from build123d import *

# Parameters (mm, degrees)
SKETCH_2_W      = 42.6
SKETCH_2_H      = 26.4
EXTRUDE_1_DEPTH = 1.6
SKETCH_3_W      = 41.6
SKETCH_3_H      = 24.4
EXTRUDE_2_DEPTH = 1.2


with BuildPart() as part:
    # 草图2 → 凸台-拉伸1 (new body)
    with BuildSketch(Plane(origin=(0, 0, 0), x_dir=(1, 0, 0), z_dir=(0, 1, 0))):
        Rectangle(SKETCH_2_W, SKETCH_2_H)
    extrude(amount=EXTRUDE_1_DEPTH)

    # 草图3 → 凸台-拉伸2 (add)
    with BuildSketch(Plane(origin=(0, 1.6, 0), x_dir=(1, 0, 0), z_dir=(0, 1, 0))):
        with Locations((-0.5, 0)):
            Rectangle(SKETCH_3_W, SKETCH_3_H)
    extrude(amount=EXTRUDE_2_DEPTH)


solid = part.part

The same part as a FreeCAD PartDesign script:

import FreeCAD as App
import Part
import Sketcher
from FreeCAD import Vector


def add_polygon(sketch, points):
    """Adds a closed chain of lines whose ends are joined by coincident constraints."""
    first, n = sketch.GeometryCount, len(points)
    for a, b in zip(points, points[1:] + points[:1]):
        sketch.addGeometry(Part.LineSegment(App.Vector(*a, 0), App.Vector(*b, 0)), False)
    for i in range(n):
        sketch.addConstraint(Sketcher.Constraint("Coincident", first + i, 2, first + (i + 1) % n, 1))

doc = App.newDocument("Part")
body = doc.addObject("PartDesign::Body", "Body")

sketch1 = body.newObject("Sketcher::SketchObject", "Sketch")
sketch1.AttachmentSupport = (doc.getObject("XZ_Plane"), [""])
sketch1.MapMode = "FlatFace"
add_polygon(sketch1, [(-21.3, -13.2), (-21.3, 13.2), (21.3, 13.2), (21.3, -13.2)])
sketch1.addConstraint([
    Sketcher.Constraint("Vertical", 0),
    Sketcher.Constraint("Horizontal", 1),
    Sketcher.Constraint("Vertical", 2),
    Sketcher.Constraint("Horizontal", 3),
    Sketcher.Constraint("Symmetric", 0, 2, 2, 2, -1, 1),
    Sketcher.Constraint("DistanceX", 1, 1, 1, 2, 42.6),
    Sketcher.Constraint("DistanceY", 0, 1, 0, 2, 26.4),
])
pad1 = body.newObject("PartDesign::Pad", "Pad")
pad1.Profile = sketch1
pad1.Length = 1.6
pad1.Reversed = True

sketch2 = body.newObject("Sketcher::SketchObject", "Sketch001")
sketch2.AttachmentSupport = (doc.getObject("XZ_Plane"), [""])
sketch2.MapMode = "FlatFace"
sketch2.AttachmentOffset = App.Placement(Vector(0, 0, -1.6), App.Rotation())
add_polygon(sketch2, [(-21.3, -12.2), (-21.3, 12.2), (20.3, 12.2), (20.3, -12.2)])
sketch2.addConstraint([
    Sketcher.Constraint("Vertical", 0),
    Sketcher.Constraint("Horizontal", 1),
    Sketcher.Constraint("Vertical", 2),
    Sketcher.Constraint("Horizontal", 3),
    Sketcher.Constraint("DistanceX", 1, 1, 1, 2, 41.6),
    Sketcher.Constraint("DistanceY", 0, 1, 0, 2, 24.4),
    Sketcher.Constraint("DistanceX", 0, 2, -1, 1, 21.3),
    Sketcher.Constraint("DistanceY", -1, 1, 0, 2, 12.2),
])
pad2 = body.newObject("PartDesign::Pad", "Pad001")
pad2.Profile = sketch2
pad2.Length = 1.2
pad2.Reversed = True

doc.recompute()
